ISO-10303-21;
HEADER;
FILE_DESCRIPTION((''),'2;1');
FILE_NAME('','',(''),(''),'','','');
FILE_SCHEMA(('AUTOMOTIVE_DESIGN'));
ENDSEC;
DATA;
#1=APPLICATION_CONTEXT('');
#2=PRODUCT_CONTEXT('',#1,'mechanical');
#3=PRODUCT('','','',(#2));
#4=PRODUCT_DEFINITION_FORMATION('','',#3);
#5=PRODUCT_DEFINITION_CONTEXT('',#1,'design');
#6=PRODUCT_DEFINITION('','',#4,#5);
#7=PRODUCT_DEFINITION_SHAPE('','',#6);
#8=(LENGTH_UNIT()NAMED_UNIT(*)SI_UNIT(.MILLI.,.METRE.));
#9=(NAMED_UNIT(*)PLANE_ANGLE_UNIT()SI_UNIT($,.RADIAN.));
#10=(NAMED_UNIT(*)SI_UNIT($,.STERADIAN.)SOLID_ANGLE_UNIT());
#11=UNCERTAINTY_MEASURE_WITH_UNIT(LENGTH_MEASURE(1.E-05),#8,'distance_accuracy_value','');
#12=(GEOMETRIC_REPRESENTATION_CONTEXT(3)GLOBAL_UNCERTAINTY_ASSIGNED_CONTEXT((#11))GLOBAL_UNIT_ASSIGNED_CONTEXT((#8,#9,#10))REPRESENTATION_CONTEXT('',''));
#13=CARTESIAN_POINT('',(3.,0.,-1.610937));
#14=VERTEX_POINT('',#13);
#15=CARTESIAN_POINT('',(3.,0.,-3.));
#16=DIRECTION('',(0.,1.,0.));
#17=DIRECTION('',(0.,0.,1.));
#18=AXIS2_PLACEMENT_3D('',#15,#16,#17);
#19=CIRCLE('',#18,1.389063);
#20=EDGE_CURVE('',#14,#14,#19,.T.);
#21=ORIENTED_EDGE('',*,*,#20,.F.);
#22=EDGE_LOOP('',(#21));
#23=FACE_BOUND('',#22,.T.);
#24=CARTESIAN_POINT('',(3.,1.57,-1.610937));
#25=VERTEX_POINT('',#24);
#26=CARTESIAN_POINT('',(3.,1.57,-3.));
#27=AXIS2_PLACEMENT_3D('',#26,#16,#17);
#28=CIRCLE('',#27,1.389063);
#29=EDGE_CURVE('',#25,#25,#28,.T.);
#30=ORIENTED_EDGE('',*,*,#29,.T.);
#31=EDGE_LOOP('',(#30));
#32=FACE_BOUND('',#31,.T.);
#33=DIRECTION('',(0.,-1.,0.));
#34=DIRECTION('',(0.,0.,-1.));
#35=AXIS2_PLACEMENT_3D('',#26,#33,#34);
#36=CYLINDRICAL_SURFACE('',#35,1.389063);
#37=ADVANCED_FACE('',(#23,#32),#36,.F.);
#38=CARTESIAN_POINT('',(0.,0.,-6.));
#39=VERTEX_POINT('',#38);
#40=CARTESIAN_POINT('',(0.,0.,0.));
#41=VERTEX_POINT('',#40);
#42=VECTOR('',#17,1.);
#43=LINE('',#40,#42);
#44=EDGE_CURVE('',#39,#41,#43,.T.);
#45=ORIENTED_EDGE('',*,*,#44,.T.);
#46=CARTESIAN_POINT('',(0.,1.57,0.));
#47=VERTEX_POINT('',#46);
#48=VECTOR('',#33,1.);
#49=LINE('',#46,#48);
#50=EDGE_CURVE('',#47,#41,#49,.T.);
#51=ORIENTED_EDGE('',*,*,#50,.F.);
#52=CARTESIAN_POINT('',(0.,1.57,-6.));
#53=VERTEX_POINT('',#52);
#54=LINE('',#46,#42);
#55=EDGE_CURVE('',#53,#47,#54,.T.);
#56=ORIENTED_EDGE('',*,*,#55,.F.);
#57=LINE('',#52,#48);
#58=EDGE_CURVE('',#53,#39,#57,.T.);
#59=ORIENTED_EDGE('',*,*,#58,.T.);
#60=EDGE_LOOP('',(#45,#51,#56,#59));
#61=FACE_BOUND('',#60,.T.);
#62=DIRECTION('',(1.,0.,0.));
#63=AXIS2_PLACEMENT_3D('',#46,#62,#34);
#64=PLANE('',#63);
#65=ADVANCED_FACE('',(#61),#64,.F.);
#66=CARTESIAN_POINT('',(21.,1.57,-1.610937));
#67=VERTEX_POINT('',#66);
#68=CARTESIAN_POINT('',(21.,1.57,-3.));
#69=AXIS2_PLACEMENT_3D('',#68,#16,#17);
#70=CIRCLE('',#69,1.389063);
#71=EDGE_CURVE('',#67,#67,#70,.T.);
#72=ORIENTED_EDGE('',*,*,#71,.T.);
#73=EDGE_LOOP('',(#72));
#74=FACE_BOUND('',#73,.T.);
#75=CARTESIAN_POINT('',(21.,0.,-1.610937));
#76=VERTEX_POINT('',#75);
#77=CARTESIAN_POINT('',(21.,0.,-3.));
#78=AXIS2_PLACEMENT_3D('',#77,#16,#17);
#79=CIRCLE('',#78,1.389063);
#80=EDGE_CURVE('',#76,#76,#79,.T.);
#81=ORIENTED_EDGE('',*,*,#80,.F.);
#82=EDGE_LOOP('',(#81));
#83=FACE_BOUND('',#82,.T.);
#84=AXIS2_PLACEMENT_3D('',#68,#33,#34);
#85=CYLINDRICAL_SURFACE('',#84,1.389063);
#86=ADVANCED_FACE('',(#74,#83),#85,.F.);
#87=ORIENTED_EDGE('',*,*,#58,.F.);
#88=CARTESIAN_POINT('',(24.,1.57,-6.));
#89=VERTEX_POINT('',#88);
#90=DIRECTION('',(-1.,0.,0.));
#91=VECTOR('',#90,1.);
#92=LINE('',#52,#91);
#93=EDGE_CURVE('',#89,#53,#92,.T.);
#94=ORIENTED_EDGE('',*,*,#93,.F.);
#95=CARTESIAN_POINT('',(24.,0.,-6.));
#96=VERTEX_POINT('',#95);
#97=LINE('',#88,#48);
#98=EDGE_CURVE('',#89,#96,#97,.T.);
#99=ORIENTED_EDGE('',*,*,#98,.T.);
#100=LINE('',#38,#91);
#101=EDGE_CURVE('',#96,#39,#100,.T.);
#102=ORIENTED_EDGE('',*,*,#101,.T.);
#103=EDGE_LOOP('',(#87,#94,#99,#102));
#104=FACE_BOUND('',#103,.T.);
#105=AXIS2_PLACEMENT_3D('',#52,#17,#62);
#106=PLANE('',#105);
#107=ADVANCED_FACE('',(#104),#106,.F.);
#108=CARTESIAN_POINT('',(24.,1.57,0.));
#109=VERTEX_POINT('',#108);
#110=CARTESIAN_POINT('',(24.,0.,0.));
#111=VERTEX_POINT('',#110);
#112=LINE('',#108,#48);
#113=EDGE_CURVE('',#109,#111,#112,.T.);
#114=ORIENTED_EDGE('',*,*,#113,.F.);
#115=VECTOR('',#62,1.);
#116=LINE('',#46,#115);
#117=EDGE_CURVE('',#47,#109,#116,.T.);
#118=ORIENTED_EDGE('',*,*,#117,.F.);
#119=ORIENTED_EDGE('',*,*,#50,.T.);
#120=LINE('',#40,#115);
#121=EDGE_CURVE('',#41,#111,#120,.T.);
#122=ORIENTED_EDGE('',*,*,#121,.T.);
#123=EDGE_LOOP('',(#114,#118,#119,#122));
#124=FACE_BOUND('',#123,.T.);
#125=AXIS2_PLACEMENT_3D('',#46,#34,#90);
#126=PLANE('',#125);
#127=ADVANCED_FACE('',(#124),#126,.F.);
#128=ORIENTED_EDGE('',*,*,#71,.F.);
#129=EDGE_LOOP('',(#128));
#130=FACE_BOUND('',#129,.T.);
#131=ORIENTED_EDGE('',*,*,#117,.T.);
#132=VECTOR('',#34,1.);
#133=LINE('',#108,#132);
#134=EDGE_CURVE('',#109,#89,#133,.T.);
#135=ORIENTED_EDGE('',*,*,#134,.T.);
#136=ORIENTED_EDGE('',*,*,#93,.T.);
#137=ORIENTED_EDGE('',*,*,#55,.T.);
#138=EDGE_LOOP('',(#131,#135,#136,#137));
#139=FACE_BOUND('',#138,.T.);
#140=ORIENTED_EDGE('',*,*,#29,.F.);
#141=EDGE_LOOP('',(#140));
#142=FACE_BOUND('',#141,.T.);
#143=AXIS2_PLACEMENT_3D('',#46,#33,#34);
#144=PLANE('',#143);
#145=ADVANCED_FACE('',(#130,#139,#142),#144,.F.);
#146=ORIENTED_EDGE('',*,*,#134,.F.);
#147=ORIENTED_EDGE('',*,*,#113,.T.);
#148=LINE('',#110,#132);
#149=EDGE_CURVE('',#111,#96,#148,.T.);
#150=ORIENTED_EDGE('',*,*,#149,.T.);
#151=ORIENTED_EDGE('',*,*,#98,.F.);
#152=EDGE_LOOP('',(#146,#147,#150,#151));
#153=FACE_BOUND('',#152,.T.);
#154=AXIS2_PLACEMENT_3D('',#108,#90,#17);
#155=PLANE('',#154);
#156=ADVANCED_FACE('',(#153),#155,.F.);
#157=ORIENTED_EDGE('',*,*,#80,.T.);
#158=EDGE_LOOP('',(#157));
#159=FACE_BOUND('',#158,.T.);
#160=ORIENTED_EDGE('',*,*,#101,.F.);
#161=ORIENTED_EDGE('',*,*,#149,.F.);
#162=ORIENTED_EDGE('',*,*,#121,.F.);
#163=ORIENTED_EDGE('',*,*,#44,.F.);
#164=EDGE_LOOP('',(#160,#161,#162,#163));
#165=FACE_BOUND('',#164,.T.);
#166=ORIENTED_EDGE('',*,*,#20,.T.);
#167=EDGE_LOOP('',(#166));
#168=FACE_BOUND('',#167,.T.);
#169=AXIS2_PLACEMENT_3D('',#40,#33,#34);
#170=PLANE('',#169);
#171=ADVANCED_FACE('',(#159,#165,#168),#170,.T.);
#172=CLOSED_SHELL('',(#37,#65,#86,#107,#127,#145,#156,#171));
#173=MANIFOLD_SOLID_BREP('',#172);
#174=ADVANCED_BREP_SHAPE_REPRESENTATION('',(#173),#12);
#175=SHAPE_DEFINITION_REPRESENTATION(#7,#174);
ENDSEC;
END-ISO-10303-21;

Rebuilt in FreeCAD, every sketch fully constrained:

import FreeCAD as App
import Part
import Sketcher
from FreeCAD import Vector

doc = App.newDocument("Part")
body = doc.addObject("PartDesign::Body", "Body")

# Sketch on XZ plane
sketch1 = body.newObject("Sketcher::SketchObject", "Sketch")
sketch1.AttachmentSupport = (doc.getObject("XZ_Plane"), [""])
sketch1.MapMode = "FlatFace"
sketch1.addGeometry(Part.LineSegment(Vector(0, -6, 0), Vector(0, 0, 0)), False)
sketch1.addGeometry(Part.LineSegment(Vector(0, 0, 0), Vector(24, 0, 0)), False)
sketch1.addGeometry(Part.LineSegment(Vector(24, 0, 0), Vector(24, -6, 0)), False)
sketch1.addGeometry(Part.LineSegment(Vector(24, -6, 0), Vector(0, -6, 0)), False)
sketch1.addGeometry(Part.Circle(Vector(3, -3, 0), Vector(0, 0, 1), 1.4), False)
sketch1.addGeometry(Part.Circle(Vector(21, -3, 0), Vector(0, 0, 1), 1.4), False)
sketch1.addConstraint(Sketcher.Constraint("Coincident", 0, 2, 1, 1))
sketch1.addConstraint(Sketcher.Constraint("Coincident", 1, 2, 2, 1))
sketch1.addConstraint(Sketcher.Constraint("Coincident", 2, 2, 3, 1))
sketch1.addConstraint(Sketcher.Constraint("Coincident", 3, 2, 0, 1))
sketch1.addConstraint(Sketcher.Constraint("Vertical", 0))
sketch1.addConstraint(Sketcher.Constraint("Horizontal", 1))
sketch1.addConstraint(Sketcher.Constraint("Vertical", 2))
sketch1.addConstraint(Sketcher.Constraint("Horizontal", 3))
sketch1.addConstraint(Sketcher.Constraint("Coincident", 0, 2, -1, 1))
sketch1.addConstraint(Sketcher.Constraint("Equal", 4, 5))
sketch1.addConstraint(Sketcher.Constraint("Horizontal", 4, 3, 5, 3))
sketch1.addConstraint(Sketcher.Constraint("DistanceX", 1, 1, 1, 2, 24.0))
sketch1.addConstraint(Sketcher.Constraint("DistanceY", 0, 1, 0, 2, 6.0))
sketch1.addConstraint(Sketcher.Constraint("DistanceX", -1, 1, 4, 3, 3.0))
sketch1.addConstraint(Sketcher.Constraint("DistanceY", 4, 3, -1, 1, 3.0))
sketch1.addConstraint(Sketcher.Constraint("DistanceX", -1, 1, 5, 3, 21.0))
sketch1.addConstraint(Sketcher.Constraint("Diameter", 4, 2.778125))
pad1 = body.newObject("PartDesign::Pad", "Pad")
pad1.Profile = sketch1
pad1.Length = 1.57
pad1.Reversed = True

doc.recompute()
